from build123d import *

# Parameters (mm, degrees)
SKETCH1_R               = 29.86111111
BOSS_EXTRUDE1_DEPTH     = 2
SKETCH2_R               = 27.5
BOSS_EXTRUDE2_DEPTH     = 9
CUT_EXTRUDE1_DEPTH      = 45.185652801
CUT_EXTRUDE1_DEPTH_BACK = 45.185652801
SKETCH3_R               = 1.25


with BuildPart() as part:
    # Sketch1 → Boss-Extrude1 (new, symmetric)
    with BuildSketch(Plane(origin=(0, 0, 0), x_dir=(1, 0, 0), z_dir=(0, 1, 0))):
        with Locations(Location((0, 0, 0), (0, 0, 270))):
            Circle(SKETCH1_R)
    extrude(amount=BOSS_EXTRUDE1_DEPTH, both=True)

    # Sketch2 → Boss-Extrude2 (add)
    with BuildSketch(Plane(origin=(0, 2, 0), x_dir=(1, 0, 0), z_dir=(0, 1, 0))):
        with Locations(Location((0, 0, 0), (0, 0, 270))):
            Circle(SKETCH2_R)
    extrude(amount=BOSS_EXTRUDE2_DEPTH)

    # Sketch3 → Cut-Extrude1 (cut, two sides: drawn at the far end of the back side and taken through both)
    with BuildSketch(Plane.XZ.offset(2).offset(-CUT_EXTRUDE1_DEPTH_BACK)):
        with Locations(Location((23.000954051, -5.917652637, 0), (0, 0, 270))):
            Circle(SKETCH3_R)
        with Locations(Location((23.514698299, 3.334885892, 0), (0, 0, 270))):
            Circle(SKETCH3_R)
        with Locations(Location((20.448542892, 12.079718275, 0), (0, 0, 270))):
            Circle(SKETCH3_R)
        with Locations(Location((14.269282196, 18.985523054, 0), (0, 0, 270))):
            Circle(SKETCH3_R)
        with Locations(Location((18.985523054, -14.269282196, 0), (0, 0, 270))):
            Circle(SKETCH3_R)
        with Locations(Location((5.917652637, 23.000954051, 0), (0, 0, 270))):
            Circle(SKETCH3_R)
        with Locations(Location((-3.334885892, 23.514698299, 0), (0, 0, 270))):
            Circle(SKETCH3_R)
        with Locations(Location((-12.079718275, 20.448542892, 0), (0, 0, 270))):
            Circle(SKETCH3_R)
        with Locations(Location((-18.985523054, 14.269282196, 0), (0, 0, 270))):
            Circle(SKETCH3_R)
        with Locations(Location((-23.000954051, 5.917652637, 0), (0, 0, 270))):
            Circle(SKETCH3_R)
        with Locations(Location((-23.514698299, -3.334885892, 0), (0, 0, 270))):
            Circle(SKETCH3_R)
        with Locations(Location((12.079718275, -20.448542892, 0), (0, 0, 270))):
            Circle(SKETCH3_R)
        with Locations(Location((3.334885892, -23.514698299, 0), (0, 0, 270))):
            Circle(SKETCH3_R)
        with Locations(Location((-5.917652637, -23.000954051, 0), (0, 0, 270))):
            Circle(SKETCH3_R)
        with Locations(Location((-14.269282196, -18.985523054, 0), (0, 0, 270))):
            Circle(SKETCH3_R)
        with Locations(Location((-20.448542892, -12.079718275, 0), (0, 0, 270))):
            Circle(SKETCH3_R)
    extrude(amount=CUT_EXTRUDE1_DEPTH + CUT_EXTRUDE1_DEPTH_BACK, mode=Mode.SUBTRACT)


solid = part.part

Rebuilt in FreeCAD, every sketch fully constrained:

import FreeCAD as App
import Part
import Sketcher

V = App.Vector
Q = App.Units.Quantity

doc = App.newDocument("Part")
params = doc.addObject("Spreadsheet::Sheet", "Params")
for row, (alias, value) in enumerate([
    ("pad1_length", "4 mm"),
    ("sketch2_diameter", "55 mm"),
    ("pad2_length", "9 mm"),
    ("sketch3_diameter", "2.5 mm"),
], start=1):
    params.set(f"A{row}", alias)
    params.set(f"B{row}", "=" + value)
    params.setAlias(f"B{row}", alias)

body = doc.addObject("PartDesign::Body", "Body")

# Sketch on XZ plane
sketch1 = doc.addObject("Sketcher::SketchObject", "Sketch")
body.addObject(sketch1)
sketch1.AttachmentSupport = (doc.XZ_Plane, [""])
sketch1.MapMode = "FlatFace"
sketch1.addGeometry(Part.Circle(V(0, 0, 0), V(0, 0, 1), 30), False)
sketch1.addConstraint([
    Sketcher.Constraint("Coincident", 0, 3, -1, 1),
    Sketcher.Constraint("Diameter", 0, Q("59.722222 mm")),
])
pad1 = doc.addObject("PartDesign::Pad", "Pad")
body.addObject(pad1)
pad1.Profile = sketch1
pad1.setExpression("Length", "Params.pad1_length")
pad1.Midplane = True

# Sketch on XZ plane
sketch2 = doc.addObject("Sketcher::SketchObject", "Sketch001")
body.addObject(sketch2)
sketch2.AttachmentSupport = (doc.XZ_Plane, [""])
sketch2.MapMode = "FlatFace"
sketch2.AttachmentOffset = App.Placement(V(0, 0, -2), App.Rotation())
sketch2.addGeometry(Part.Circle(V(0, 0, 0), V(0, 0, 1), 28), False)
sketch2.addConstraint([
    Sketcher.Constraint("Coincident", 0, 3, -1, 1),
    Sketcher.Constraint("Diameter", 0, Q("55 mm")),
])
sketch2.setExpression("Constraints[1]", "Params.sketch2_diameter")
pad2 = doc.addObject("PartDesign::Pad", "Pad001")
body.addObject(pad2)
pad2.Profile = sketch2
pad2.setExpression("Length", "Params.pad2_length")
pad2.Reversed = True

# Sketch on XZ plane
sketch3 = doc.addObject("Sketcher::SketchObject", "Sketch002")
body.addObject(sketch3)
sketch3.AttachmentSupport = (doc.XZ_Plane, [""])
sketch3.MapMode = "FlatFace"
sketch3.AttachmentOffset = App.Placement(V(0, 0, 2), App.Rotation())
sketch3.addGeometry([
    Part.Circle(V(23, -5.9, 0), V(0, 0, 1), 1.2),  # 0
    Part.Circle(V(23.5, 3.3, 0), V(0, 0, 1), 1.2),  # 1
    Part.Circle(V(20.4, 12.1, 0), V(0, 0, 1), 1.2),  # 2
    Part.Circle(V(14.3, 19, 0), V(0, 0, 1), 1.2),  # 3
    Part.Circle(V(19, -14.3, 0), V(0, 0, 1), 1.2),  # 4
    Part.Circle(V(5.9, 23, 0), V(0, 0, 1), 1.2),  # 5
    Part.Circle(V(-3.3, 23.5, 0), V(0, 0, 1), 1.2),  # 6
    Part.Circle(V(-12.1, 20.4, 0), V(0, 0, 1), 1.2),  # 7
    Part.Circle(V(-19, 14.3, 0), V(0, 0, 1), 1.2),  # 8
    Part.Circle(V(-23, 5.9, 0), V(0, 0, 1), 1.2),  # 9
    Part.Circle(V(-23.5, -3.3, 0), V(0, 0, 1), 1.2),  # 10
    Part.Circle(V(12.1, -20.4, 0), V(0, 0, 1), 1.2),  # 11
    Part.Circle(V(3.3, -23.5, 0), V(0, 0, 1), 1.2),  # 12
    Part.Circle(V(-5.9, -23, 0), V(0, 0, 1), 1.2),  # 13
    Part.Circle(V(-14.3, -19, 0), V(0, 0, 1), 1.2),  # 14
    Part.Circle(V(-20.4, -12.1, 0), V(0, 0, 1), 1.2),  # 15
], False)
sketch3.addConstraint([
    Sketcher.Constraint("Equal", 0, 1),
    Sketcher.Constraint("Equal", 1, 2),
    Sketcher.Constraint("Equal", 2, 3),
    Sketcher.Constraint("Equal", 3, 4),
    Sketcher.Constraint("Equal", 4, 5),
    Sketcher.Constraint("Equal", 5, 6),
    Sketcher.Constraint("Equal", 6, 7),
    Sketcher.Constraint("Equal", 7, 8),
    Sketcher.Constraint("Equal", 8, 9),
    Sketcher.Constraint("Equal", 9, 10),
    Sketcher.Constraint("Equal", 10, 11),
    Sketcher.Constraint("Equal", 11, 12),
    Sketcher.Constraint("Equal", 12, 13),
    Sketcher.Constraint("Equal", 13, 14),
    Sketcher.Constraint("Equal", 14, 15),
    Sketcher.Constraint("Symmetric", 4, 3, 8, 3, -1, 1),
    Sketcher.Constraint("Symmetric", 0, 3, 9, 3, -1, 1),
    Sketcher.Constraint("Symmetric", 1, 3, 10, 3, -1, 1),
    Sketcher.Constraint("Symmetric", 7, 3, 11, 3, -1, 1),
    Sketcher.Constraint("Symmetric", 6, 3, 12, 3, -1, 1),
    Sketcher.Constraint("Symmetric", 5, 3, 13, 3, -1, 1),
    Sketcher.Constraint("Symmetric", 3, 3, 14, 3, -1, 1),
    Sketcher.Constraint("Symmetric", 2, 3, 15, 3, -1, 1),
    Sketcher.Constraint("Diameter", 0, Q("2.5 mm")),
    Sketcher.Constraint("DistanceY", 4, 3, 2, 3, Q("26.349 mm")),
    Sketcher.Constraint("DistanceX", 7, 3, 3, 3, Q("26.349 mm")),
    Sketcher.Constraint("DistanceX", -1, 1, 1, 3, Q("23.514698 mm")),
    Sketcher.Constraint("DistanceY", -1, 1, 6, 3, Q("23.514698 mm")),
    Sketcher.Constraint("DistanceX", 5, 3, 0, 3, Q("17.083301 mm")),
    Sketcher.Constraint("DistanceY", 9, 3, 5, 3, Q("17.083301 mm")),
    Sketcher.Constraint("DistanceY", -1, 1, 2, 3, Q("12.079718 mm")),
    Sketcher.Constraint("DistanceX", 7, 3, -1, 1, Q("12.079718 mm")),
    Sketcher.Constraint("DistanceY", 0, 3, 1, 3, Q("9.252539 mm")),
    Sketcher.Constraint("DistanceX", 2, 3, 0, 3, Q("2.552411 mm")),
    Sketcher.Constraint("DistanceY", 0, 3, 2, 3, Q("17.997371 mm")),
    Sketcher.Constraint("DistanceX", 3, 3, 2, 3, Q("6.179261 mm")),
    Sketcher.Constraint("DistanceX", 4, 3, 0, 3, Q("4.015431 mm")),
    Sketcher.Constraint("DistanceY", 3, 3, 5, 3, Q("4.015431 mm")),
    Sketcher.Constraint("DistanceX", 6, 3, 5, 3, Q("9.252539 mm")),
    Sketcher.Constraint("DistanceY", 7, 3, 5, 3, Q("2.552411 mm")),
])
sketch3.setExpression("Constraints[23]", "Params.sketch3_diameter")
pocket1 = doc.addObject("PartDesign::Pocket", "Pocket")
body.addObject(pocket1)
pocket1.Profile = sketch3
pocket1.Type = "ThroughAll"
pocket1.Midplane = True

doc.recompute()
